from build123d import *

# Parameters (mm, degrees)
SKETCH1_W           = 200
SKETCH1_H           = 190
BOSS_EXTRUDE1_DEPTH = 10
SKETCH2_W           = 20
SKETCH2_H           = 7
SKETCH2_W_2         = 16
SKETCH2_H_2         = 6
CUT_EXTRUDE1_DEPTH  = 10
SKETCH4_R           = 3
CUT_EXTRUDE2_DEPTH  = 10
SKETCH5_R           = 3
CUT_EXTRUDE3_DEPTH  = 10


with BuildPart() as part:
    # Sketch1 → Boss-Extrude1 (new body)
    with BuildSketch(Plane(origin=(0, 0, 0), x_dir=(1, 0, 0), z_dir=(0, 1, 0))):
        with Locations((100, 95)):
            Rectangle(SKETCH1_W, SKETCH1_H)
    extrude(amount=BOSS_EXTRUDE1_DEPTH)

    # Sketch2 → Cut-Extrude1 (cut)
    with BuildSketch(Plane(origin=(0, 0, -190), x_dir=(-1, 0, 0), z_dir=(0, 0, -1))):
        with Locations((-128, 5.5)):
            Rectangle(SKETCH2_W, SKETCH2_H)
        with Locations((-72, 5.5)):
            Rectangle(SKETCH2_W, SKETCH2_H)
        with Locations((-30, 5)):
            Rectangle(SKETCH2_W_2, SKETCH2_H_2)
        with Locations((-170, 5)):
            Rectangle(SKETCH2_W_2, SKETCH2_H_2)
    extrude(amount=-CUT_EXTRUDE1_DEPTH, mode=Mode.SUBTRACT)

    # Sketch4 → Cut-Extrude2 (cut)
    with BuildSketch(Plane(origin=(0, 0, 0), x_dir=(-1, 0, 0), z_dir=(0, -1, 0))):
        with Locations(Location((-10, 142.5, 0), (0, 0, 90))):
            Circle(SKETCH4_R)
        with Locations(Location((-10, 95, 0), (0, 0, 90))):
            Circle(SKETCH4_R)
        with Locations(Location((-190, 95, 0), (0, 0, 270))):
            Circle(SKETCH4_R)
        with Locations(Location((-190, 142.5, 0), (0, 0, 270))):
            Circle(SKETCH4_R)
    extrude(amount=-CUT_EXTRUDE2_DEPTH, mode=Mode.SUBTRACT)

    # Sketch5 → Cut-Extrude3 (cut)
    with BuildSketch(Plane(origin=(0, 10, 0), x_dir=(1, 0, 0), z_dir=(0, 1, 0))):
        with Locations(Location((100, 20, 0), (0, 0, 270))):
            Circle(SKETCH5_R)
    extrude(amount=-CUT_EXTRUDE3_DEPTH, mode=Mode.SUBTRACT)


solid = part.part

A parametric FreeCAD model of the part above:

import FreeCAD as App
import Part
import Sketcher

V = App.Vector


def add_polygon(sketch, points):
    """Adds a closed chain of lines whose ends are joined by coincident constraints."""
    first, n = sketch.GeometryCount, len(points)
    for a, b in zip(points, points[1:] + points[:1]):
        sketch.addGeometry(Part.LineSegment(App.Vector(*a, 0), App.Vector(*b, 0)), False)
    for i in range(n):
        sketch.addConstraint(Sketcher.Constraint("Coincident", first + i, 2, first + (i + 1) % n, 1))

doc = App.newDocument("Part")
params = doc.addObject("Spreadsheet::Sheet", "Params")
for row, (alias, value) in enumerate([
    ("sketch1_width", "200 mm"),
    ("sketch1_height", "190 mm"),
    ("pad1_length", "10 mm"),
    ("sketch2_width", "20 mm"),
    ("sketch2_width2", "16 mm"),
    ("sketch2_height", "7 mm"),
    ("sketch2_height2", "6 mm"),
    ("pocket1_length", "10 mm"),
    ("sketch3_diameter", "6 mm"),
    ("pocket2_length", "10 mm"),
    ("sketch4_diameter", "6 mm"),
    ("pocket3_length", "10 mm"),
], start=1):
    params.set(f"A{row}", alias)
    params.set(f"B{row}", "=" + value)
    params.setAlias(f"B{row}", alias)

body = doc.addObject("PartDesign::Body", "Body")

# Sketch on XZ plane
sketch1 = doc.addObject("Sketcher::SketchObject", "Sketch")
body.addObject(sketch1)
sketch1.AttachmentSupport = (doc.XZ_Plane, [""])
sketch1.MapMode = "FlatFace"
add_polygon(sketch1, [(0, -190), (0, 0), (200, 0), (200, -190)])  # lines 0-3
sketch1.addConstraint(Sketcher.Constraint("Vertical", 0))
sketch1.addConstraint(Sketcher.Constraint("Horizontal", 1))
sketch1.addConstraint(Sketcher.Constraint("Vertical", 2))
sketch1.addConstraint(Sketcher.Constraint("Horizontal", 3))
sketch1.addConstraint(Sketcher.Constraint("Coincident", 0, 2, -1, 1))
sketch1.addConstraint(Sketcher.Constraint("DistanceX", 1, 1, 1, 2, 200.0))
sketch1.addConstraint(Sketcher.Constraint("DistanceY", 0, 1, 0, 2, 190.0))
sketch1.setExpression("Constraints[9]", "Params.sketch1_width")
sketch1.setExpression("Constraints[10]", "Params.sketch1_height")
pad1 = doc.addObject("PartDesign::Pad", "Pad")
body.addObject(pad1)
pad1.Profile = sketch1
pad1.setExpression("Length", "Params.pad1_length")
pad1.Reversed = True

# Sketch on XY plane
sketch2 = doc.addObject("Sketcher::SketchObject", "Sketch001")
body.addObject(sketch2)
sketch2.AttachmentSupport = (doc.XY_Plane, [""])
sketch2.MapMode = "FlatFace"
sketch2.AttachmentOffset = App.Placement(V(0, 0, -190), App.Rotation())
add_polygon(sketch2, [(138, 9), (138, 2), (118, 2), (118, 9)])  # lines 0-3
add_polygon(sketch2, [(82, 9), (82, 2), (62, 2), (62, 9)])  # lines 4-7
add_polygon(sketch2, [(38, 8), (38, 2), (22, 2), (22, 8)])  # lines 8-11
add_polygon(sketch2, [(178, 8), (178, 2), (162, 2), (162, 8)])  # lines 12-15
sketch2.addConstraint(Sketcher.Constraint("Vertical", 0))
sketch2.addConstraint(Sketcher.Constraint("Horizontal", 1))
sketch2.addConstraint(Sketcher.Constraint("Vertical", 2))
sketch2.addConstraint(Sketcher.Constraint("Horizontal", 3))
sketch2.addConstraint(Sketcher.Constraint("Vertical", 4))
sketch2.addConstraint(Sketcher.Constraint("Horizontal", 5))
sketch2.addConstraint(Sketcher.Constraint("Vertical", 6))
sketch2.addConstraint(Sketcher.Constraint("Horizontal", 7))
sketch2.addConstraint(Sketcher.Constraint("Vertical", 8))
sketch2.addConstraint(Sketcher.Constraint("Horizontal", 9))
sketch2.addConstraint(Sketcher.Constraint("Vertical", 10))
sketch2.addConstraint(Sketcher.Constraint("Horizontal", 11))
sketch2.addConstraint(Sketcher.Constraint("Vertical", 12))
sketch2.addConstraint(Sketcher.Constraint("Horizontal", 13))
sketch2.addConstraint(Sketcher.Constraint("Vertical", 14))
sketch2.addConstraint(Sketcher.Constraint("Horizontal", 15))
sketch2.addConstraint(Sketcher.Constraint("Horizontal", 1, 2, 4, 2))
sketch2.addConstraint(Sketcher.Constraint("Horizontal", 3, 2, 6, 2))
sketch2.addConstraint(Sketcher.Constraint("Horizontal", 5, 2, 8, 2))
sketch2.addConstraint(Sketcher.Constraint("Horizontal", 9, 2, 12, 2))
sketch2.addConstraint(Sketcher.Constraint("Horizontal", 11, 2, 14, 2))
sketch2.addConstraint(Sketcher.Constraint("Equal", 3, 5))
sketch2.addConstraint(Sketcher.Constraint("Equal", 11, 13))
sketch2.addConstraint(Sketcher.Constraint("DistanceX", 1, 2, 1, 1, 20.0))
sketch2.addConstraint(Sketcher.Constraint("DistanceX", 9, 2, 9, 1, 16.0))
sketch2.addConstraint(Sketcher.Constraint("DistanceY", 0, 2, 0, 1, 7.0))
sketch2.addConstraint(Sketcher.Constraint("DistanceY", 8, 2, 8, 1, 6.0))
sketch2.addConstraint(Sketcher.Constraint("DistanceX", -1, 1, 0, 2, 138.0))
sketch2.addConstraint(Sketcher.Constraint("DistanceY", -1, 1, 0, 2, 2.0))
sketch2.addConstraint(Sketcher.Constraint("DistanceX", -1, 1, 4, 2, 82.0))
sketch2.addConstraint(Sketcher.Constraint("DistanceX", -1, 1, 8, 2, 38.0))
sketch2.addConstraint(Sketcher.Constraint("DistanceX", -1, 1, 12, 2, 178.0))
sketch2.setExpression("Constraints[39]", "Params.sketch2_width")
sketch2.setExpression("Constraints[40]", "Params.sketch2_width2")
sketch2.setExpression("Constraints[41]", "Params.sketch2_height")
sketch2.setExpression("Constraints[42]", "Params.sketch2_height2")
pocket1 = doc.addObject("PartDesign::Pocket", "Pocket")
body.addObject(pocket1)
pocket1.Profile = sketch2
pocket1.setExpression("Length", "Params.pocket1_length")
pocket1.Reversed = True

# Sketch on XZ plane
sketch3 = doc.addObject("Sketcher::SketchObject", "Sketch002")
body.addObject(sketch3)
sketch3.AttachmentSupport = (doc.XZ_Plane, [""])
sketch3.MapMode = "FlatFace"
sketch3.addGeometry(Part.Circle(V(10, -142.5, 0), V(0, 0, 1), 3), False)
sketch3.addGeometry(Part.Circle(V(10, -95, 0), V(0, 0, 1), 3), False)
sketch3.addGeometry(Part.Circle(V(190, -95, 0), V(0, 0, 1), 3), False)
sketch3.addGeometry(Part.Circle(V(190, -142.5, 0), V(0, 0, 1), 3), False)
sketch3.addConstraint(Sketcher.Constraint("Equal", 0, 1))
sketch3.addConstraint(Sketcher.Constraint("Equal", 1, 2))
sketch3.addConstraint(Sketcher.Constraint("Equal", 2, 3))
sketch3.addConstraint(Sketcher.Constraint("Horizontal", 1, 3, 2, 3))
sketch3.addConstraint(Sketcher.Constraint("Horizontal", 0, 3, 3, 3))
sketch3.addConstraint(Sketcher.Constraint("Vertical", 0, 3, 1, 3))
sketch3.addConstraint(Sketcher.Constraint("Vertical", 2, 3, 3, 3))
sketch3.addConstraint(Sketcher.Constraint("Diameter", 0, 6.0))
sketch3.addConstraint(Sketcher.Constraint("DistanceX", -1, 1, 0, 3, 10.0))
sketch3.addConstraint(Sketcher.Constraint("DistanceY", 1, 3, -1, 1, 95.0))
sketch3.addConstraint(Sketcher.Constraint("DistanceX", -1, 1, 2, 3, 190.0))
sketch3.addConstraint(Sketcher.Constraint("DistanceY", 0, 3, -1, 1, 142.5))
sketch3.setExpression("Constraints[7]", "Params.sketch3_diameter")
pocket2 = doc.addObject("PartDesign::Pocket", "Pocket001")
body.addObject(pocket2)
pocket2.Profile = sketch3
pocket2.setExpression("Length", "Params.pocket2_length")

# Sketch on XZ plane
sketch4 = doc.addObject("Sketcher::SketchObject", "Sketch003")
body.addObject(sketch4)
sketch4.AttachmentSupport = (doc.XZ_Plane, [""])
sketch4.MapMode = "FlatFace"
sketch4.AttachmentOffset = App.Placement(V(0, 0, -10), App.Rotation())
sketch4.addGeometry(Part.Circle(V(100, -20, 0), V(0, 0, 1), 3), False)
sketch4.addConstraint(Sketcher.Constraint("Diameter", 0, 6.0))
sketch4.addConstraint(Sketcher.Constraint("DistanceX", -1, 1, 0, 3, 100.0))
sketch4.addConstraint(Sketcher.Constraint("DistanceY", 0, 3, -1, 1, 20.0))
sketch4.setExpression("Constraints[0]", "Params.sketch4_diameter")
pocket3 = doc.addObject("PartDesign::Pocket", "Pocket002")
body.addObject(pocket3)
pocket3.Profile = sketch4
pocket3.setExpression("Length", "Params.pocket3_length")
pocket3.Reversed = True

doc.recompute()
